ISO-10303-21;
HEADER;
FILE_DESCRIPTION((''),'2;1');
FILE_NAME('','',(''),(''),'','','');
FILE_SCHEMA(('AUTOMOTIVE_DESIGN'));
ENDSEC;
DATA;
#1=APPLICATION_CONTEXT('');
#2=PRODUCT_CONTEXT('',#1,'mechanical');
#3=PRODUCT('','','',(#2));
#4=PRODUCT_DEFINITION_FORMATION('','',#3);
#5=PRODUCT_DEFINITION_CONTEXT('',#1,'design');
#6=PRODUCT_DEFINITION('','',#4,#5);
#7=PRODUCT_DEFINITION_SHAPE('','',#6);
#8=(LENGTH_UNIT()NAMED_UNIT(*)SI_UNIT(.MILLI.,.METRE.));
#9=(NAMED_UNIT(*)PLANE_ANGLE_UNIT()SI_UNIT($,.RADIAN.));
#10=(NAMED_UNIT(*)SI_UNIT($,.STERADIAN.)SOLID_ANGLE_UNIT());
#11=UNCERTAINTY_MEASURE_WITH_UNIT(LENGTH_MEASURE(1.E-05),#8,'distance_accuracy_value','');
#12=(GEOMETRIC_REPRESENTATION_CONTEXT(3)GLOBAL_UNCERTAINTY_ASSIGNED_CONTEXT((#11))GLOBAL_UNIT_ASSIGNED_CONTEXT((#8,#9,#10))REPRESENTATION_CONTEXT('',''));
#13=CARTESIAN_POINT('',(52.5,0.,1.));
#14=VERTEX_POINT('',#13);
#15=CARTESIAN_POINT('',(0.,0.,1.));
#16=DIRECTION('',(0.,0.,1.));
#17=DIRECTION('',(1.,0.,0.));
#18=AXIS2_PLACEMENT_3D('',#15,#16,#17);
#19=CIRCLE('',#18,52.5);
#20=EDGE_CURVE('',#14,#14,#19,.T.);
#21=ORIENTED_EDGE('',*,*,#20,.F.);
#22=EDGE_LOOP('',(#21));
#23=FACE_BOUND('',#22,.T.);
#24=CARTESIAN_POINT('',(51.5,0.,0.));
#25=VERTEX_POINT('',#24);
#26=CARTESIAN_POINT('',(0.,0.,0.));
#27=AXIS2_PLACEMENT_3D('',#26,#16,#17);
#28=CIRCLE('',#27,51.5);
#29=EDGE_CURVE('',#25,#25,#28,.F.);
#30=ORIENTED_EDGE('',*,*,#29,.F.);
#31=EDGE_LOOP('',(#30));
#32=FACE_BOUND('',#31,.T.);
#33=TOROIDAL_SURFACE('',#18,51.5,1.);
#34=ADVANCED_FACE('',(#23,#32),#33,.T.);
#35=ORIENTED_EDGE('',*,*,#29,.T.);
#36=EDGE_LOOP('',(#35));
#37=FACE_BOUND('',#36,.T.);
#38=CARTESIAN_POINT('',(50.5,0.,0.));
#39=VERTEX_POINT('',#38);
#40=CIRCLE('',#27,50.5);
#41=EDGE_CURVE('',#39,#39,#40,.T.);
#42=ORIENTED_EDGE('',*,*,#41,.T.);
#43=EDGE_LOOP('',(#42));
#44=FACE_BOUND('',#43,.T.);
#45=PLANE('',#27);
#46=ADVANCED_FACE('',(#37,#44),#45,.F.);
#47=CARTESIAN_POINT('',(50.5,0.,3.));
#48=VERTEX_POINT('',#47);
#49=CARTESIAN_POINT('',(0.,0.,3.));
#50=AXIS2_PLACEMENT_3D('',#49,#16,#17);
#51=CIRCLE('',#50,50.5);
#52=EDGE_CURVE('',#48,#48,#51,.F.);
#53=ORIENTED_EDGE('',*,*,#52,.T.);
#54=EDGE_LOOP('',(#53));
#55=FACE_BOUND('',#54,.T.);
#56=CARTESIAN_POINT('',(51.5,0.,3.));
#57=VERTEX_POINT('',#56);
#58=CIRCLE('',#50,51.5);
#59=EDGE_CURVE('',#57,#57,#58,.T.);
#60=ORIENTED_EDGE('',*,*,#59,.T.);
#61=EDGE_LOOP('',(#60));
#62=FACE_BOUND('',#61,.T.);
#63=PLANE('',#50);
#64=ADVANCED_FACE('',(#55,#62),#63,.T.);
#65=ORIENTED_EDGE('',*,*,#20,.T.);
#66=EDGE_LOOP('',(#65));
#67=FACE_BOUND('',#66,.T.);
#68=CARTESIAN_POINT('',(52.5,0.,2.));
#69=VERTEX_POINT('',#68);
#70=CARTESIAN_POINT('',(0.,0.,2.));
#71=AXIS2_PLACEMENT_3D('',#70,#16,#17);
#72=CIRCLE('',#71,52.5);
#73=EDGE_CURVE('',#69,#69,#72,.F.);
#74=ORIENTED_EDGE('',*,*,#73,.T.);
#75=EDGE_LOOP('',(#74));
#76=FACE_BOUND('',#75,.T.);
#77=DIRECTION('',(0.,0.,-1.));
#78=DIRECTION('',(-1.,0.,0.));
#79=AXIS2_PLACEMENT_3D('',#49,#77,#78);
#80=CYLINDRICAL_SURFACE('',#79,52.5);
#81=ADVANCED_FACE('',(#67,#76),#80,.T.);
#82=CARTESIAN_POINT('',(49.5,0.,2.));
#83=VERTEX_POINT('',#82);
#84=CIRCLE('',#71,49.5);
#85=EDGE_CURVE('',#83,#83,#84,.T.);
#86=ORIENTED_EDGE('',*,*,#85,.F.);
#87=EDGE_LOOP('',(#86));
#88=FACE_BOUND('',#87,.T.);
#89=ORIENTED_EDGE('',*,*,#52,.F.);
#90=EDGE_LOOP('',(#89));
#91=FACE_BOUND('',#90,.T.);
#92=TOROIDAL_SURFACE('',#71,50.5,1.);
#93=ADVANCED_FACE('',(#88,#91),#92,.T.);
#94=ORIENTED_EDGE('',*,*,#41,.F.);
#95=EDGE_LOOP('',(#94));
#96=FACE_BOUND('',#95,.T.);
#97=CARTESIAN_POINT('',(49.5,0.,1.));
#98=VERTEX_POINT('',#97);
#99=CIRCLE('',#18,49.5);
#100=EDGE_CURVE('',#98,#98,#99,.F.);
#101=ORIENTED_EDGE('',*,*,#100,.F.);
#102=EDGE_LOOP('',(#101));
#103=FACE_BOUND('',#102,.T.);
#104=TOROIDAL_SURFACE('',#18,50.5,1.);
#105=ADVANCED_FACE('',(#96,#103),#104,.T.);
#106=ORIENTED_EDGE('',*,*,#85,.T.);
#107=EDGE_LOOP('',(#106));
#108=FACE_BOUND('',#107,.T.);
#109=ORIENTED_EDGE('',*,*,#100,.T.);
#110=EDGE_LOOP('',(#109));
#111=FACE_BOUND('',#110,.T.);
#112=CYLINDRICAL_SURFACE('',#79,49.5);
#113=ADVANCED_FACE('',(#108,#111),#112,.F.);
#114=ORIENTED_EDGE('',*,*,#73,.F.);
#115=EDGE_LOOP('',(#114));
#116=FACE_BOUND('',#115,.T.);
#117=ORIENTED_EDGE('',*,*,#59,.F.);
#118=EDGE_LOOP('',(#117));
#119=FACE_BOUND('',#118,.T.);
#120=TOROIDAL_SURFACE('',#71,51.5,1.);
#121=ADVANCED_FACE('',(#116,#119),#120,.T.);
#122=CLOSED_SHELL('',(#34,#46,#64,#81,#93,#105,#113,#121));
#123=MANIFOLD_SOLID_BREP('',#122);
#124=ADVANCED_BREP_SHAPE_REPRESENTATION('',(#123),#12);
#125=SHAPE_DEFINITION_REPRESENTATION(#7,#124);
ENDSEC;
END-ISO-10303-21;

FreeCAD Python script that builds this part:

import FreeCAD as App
import Part
import Sketcher
Q = App.Units.Quantity


def edges_at(feature, points):
    """Names of the edges that pass closest to the given points."""
    edges = feature.Shape.Edges
    near = lambda p: min(range(len(edges)), key=lambda i: edges[i].distToShape(Part.Vertex(*p))[0])
    return sorted({f"Edge{near(p) + 1}" for p in points})

doc = App.newDocument("Part")
body = doc.addObject("PartDesign::Body", "Body")

# Sketch on XY plane
sketch1 = body.newObject("Sketcher::SketchObject", "Sketch")
sketch1.AttachmentSupport = (doc.getObject("XY_Plane"), [""])
sketch1.MapMode = "FlatFace"
sketch1.addGeometry([
    Part.Circle(App.Vector(0, 0, 0), App.Vector(0, 0, 1), 52.5),
    Part.Circle(App.Vector(0, 0, 0), App.Vector(0, 0, 1), 49.5),
], False)
sketch1.addConstraint([
    Sketcher.Constraint("Coincident", 0, 3, -1, 1),
    Sketcher.Constraint("Coincident", 1, 3, -1, 1),
    Sketcher.Constraint("Diameter", 0, Q("105 mm")),
    Sketcher.Constraint("Diameter", 1, Q("99 mm")),
])
pad1 = body.newObject("PartDesign::Pad", "Pad")
pad1.Profile = sketch1
pad1.Length = 3
doc.recompute()

fillet = body.newObject("PartDesign::Fillet", "Fillet")
fillet.Base = (pad1, edges_at(pad1, [
    (-52.5, 0, 0),
    (-52.5, 0, 3),
    (-49.5, 0, 0),
    (-49.5, 0, 3),
]))
fillet.Radius = 1

doc.recompute()
